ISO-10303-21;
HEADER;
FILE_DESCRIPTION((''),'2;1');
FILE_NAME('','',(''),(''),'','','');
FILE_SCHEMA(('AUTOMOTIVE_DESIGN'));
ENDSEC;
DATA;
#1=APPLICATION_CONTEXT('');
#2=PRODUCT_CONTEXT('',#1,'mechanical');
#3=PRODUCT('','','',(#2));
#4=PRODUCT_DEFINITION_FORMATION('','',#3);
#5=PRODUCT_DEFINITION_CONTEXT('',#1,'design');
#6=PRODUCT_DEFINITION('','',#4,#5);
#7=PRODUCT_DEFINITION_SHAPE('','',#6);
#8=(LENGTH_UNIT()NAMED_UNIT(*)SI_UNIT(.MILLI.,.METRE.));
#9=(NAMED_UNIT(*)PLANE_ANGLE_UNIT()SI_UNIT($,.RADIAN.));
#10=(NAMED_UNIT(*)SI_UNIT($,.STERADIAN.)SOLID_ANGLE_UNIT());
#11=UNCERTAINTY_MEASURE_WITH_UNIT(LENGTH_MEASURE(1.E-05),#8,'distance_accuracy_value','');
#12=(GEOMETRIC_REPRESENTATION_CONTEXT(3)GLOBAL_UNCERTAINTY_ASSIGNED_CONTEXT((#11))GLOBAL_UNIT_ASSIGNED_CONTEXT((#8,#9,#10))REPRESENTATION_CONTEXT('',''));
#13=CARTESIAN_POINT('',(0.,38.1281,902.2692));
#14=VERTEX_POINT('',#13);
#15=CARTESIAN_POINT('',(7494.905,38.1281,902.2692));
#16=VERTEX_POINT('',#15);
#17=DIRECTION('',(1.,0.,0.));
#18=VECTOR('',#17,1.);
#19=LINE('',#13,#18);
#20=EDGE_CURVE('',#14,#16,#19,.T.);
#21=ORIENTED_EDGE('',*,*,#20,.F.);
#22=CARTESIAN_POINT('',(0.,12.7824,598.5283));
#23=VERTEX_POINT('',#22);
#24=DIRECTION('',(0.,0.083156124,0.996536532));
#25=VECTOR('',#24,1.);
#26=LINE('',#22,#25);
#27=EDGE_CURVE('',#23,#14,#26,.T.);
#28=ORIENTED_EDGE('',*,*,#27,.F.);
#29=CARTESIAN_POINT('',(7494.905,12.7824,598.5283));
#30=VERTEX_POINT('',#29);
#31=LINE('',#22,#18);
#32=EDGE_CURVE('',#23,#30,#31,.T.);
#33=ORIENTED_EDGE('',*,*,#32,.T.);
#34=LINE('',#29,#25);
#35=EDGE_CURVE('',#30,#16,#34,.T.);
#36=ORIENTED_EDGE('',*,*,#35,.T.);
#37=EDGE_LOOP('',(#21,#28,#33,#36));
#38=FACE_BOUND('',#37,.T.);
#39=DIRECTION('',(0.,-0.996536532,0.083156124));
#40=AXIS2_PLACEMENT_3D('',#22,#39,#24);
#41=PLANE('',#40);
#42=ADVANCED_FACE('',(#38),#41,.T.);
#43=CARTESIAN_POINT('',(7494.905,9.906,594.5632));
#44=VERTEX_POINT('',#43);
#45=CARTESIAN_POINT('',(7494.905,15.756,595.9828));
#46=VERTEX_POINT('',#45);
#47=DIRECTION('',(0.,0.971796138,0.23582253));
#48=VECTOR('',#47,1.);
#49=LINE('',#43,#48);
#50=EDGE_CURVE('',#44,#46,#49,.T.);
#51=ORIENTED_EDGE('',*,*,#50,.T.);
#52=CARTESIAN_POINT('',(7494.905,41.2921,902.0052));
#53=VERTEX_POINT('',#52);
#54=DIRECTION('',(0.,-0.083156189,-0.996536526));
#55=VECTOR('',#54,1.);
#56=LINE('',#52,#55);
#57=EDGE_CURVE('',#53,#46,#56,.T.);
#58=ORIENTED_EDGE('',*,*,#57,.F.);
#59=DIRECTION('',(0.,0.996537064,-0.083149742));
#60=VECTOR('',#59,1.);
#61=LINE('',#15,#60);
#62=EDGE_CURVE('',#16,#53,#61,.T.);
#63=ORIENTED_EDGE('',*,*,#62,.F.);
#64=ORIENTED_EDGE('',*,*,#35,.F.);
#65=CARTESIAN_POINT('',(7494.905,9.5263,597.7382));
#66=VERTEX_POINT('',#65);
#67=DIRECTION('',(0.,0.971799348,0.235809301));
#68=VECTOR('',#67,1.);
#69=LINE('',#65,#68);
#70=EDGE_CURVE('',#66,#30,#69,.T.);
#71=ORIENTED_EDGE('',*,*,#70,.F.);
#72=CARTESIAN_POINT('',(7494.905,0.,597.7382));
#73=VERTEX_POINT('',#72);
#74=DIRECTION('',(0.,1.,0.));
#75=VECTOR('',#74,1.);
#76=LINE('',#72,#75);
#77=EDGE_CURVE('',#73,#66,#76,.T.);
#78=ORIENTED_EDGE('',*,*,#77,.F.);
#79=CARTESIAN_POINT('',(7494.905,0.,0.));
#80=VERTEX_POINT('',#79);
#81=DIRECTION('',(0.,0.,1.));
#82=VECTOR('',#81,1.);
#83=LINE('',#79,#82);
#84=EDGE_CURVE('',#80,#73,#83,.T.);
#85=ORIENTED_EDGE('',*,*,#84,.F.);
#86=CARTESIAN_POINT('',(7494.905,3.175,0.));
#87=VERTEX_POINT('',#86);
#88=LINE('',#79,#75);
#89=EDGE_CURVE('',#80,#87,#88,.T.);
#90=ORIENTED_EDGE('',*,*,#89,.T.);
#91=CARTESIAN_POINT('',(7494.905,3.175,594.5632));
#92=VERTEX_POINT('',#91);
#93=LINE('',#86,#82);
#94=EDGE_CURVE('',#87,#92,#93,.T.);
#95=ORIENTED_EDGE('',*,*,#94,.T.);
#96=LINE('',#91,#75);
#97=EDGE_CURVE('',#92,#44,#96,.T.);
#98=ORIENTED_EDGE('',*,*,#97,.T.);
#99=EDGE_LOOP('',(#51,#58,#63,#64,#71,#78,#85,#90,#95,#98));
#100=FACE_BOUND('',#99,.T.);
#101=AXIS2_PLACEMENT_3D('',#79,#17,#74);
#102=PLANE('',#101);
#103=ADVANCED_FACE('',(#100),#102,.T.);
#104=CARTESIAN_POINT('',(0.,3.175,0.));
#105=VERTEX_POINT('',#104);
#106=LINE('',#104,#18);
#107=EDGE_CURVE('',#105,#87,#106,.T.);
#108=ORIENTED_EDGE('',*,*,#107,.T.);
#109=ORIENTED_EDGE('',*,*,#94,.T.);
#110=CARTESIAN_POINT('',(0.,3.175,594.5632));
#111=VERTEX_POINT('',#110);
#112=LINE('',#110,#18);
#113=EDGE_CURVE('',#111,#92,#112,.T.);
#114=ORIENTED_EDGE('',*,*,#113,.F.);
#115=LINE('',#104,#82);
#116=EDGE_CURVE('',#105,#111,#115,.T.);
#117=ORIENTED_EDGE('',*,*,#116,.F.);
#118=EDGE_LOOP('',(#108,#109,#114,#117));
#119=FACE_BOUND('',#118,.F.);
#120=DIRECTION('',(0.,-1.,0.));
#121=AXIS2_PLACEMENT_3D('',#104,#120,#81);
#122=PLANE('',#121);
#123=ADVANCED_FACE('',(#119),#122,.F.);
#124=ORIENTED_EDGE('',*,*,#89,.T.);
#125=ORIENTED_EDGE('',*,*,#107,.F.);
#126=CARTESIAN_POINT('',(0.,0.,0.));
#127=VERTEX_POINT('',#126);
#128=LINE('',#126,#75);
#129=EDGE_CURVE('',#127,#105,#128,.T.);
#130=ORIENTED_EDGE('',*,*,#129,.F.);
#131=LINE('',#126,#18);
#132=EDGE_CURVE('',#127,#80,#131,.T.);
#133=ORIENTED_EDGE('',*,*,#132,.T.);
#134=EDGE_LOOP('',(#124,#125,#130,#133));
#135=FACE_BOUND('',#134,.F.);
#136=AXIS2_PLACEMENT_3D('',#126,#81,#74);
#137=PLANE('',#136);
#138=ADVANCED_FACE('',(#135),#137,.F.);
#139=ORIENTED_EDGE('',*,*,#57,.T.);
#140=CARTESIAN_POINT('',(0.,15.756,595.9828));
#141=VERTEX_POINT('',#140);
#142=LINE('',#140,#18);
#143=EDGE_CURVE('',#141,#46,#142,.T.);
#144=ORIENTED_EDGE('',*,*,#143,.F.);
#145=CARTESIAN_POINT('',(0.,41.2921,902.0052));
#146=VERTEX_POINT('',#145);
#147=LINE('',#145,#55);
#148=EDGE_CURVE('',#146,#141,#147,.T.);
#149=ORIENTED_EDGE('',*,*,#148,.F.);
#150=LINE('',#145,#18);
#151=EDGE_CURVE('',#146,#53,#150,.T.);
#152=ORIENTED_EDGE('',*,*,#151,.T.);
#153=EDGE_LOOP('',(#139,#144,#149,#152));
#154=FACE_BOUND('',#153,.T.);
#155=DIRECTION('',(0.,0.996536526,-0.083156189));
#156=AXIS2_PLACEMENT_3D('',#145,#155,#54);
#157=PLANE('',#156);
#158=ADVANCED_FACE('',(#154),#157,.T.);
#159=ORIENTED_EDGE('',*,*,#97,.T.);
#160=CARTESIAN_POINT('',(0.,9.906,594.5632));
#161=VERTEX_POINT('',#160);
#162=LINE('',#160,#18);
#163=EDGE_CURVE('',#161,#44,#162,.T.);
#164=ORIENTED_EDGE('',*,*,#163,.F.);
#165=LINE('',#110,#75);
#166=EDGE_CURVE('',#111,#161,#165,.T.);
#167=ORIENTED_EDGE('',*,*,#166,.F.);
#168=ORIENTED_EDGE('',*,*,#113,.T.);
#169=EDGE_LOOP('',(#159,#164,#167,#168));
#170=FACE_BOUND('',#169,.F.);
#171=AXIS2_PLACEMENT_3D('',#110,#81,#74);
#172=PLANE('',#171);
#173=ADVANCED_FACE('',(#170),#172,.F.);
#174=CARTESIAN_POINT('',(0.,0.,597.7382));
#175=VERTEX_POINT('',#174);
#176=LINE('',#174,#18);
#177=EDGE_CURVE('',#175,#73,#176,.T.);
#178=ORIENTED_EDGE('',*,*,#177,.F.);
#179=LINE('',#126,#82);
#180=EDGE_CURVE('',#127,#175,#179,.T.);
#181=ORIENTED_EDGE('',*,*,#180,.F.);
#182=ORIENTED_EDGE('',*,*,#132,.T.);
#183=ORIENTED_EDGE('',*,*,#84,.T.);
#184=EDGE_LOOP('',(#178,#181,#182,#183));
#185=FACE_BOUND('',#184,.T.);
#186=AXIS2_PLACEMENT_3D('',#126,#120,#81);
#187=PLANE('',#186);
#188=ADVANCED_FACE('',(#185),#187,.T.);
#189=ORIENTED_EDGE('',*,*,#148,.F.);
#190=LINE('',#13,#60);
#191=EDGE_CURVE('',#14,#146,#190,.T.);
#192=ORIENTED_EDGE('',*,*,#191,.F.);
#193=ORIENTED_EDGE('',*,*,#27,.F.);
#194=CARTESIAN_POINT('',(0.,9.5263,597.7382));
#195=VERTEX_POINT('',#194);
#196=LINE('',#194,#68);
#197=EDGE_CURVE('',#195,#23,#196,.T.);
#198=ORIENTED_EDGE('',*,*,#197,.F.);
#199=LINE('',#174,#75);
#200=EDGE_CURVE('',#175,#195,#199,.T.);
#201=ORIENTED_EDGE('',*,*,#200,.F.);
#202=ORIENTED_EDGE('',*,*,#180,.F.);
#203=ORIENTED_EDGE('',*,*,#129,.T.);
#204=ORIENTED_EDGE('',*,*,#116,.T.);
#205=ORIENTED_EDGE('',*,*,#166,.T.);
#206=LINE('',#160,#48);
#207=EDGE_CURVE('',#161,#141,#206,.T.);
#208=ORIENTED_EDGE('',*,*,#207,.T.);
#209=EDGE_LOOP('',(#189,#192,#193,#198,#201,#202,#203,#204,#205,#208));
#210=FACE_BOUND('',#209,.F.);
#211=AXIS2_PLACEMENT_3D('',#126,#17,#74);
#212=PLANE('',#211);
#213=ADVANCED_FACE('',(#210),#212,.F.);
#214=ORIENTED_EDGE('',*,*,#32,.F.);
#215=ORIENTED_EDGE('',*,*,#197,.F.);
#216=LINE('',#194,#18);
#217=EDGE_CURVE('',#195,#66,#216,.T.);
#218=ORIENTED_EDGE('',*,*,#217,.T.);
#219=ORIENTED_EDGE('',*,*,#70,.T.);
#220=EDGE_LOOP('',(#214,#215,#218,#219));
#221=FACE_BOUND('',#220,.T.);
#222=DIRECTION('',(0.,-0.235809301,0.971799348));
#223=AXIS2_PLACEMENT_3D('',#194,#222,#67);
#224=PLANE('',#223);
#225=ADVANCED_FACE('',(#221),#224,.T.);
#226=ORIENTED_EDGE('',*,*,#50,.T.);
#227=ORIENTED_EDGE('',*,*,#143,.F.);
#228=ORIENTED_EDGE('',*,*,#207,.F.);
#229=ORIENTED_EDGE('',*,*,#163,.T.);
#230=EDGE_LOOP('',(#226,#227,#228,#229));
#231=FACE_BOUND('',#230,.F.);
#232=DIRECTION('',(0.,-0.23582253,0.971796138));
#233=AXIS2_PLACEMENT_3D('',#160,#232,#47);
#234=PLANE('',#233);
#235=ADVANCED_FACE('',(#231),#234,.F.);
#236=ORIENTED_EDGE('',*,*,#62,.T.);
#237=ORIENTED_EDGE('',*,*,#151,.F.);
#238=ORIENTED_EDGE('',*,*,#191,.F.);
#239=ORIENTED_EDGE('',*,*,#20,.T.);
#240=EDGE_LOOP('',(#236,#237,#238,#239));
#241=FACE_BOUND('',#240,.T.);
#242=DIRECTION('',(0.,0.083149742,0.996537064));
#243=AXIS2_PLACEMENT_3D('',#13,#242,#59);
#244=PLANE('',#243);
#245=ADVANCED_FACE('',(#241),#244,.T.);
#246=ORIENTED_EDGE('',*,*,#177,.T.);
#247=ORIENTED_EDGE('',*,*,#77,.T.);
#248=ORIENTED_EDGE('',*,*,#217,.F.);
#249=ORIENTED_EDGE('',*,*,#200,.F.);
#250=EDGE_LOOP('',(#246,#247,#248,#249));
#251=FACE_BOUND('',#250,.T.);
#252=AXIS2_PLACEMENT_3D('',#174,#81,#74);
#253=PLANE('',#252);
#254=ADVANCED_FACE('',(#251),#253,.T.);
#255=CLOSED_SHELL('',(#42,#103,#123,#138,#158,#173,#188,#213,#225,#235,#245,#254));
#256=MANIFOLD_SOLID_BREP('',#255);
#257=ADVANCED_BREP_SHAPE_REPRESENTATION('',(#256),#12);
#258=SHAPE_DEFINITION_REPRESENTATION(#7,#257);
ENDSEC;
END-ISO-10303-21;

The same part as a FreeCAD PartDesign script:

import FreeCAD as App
import Part
import Sketcher
Q = App.Units.Quantity

doc = App.newDocument("Part")
body = doc.addObject("PartDesign::Body", "Body")

sketch1 = doc.addObject("Sketcher::SketchObject", "Sketch")
body.addObject(sketch1)
sketch1.AttachmentSupport = (doc.YZ_Plane, [""])
sketch1.MapMode = "FlatFace"
sketch1.addGeometry(Part.LineSegment(App.Vector(0, 597.7, 0), App.Vector(0, 0, 0)), False)
sketch1.addGeometry(Part.LineSegment(App.Vector(0, 0, 0), App.Vector(3.2, 0, 0)), False)
sketch1.addGeometry(Part.LineSegment(App.Vector(3.2, 0, 0), App.Vector(3.2, 594.6, 0)), False)
sketch1.addGeometry(Part.LineSegment(App.Vector(3.2, 594.6, 0), App.Vector(9.9, 594.6, 0)), False)
sketch1.addGeometry(Part.LineSegment(App.Vector(9.9, 594.6, 0), App.Vector(15.8, 596, 0)), False)
sketch1.addGeometry(Part.LineSegment(App.Vector(15.8, 596, 0), App.Vector(41.3, 902, 0)), False)
sketch1.addGeometry(Part.LineSegment(App.Vector(41.3, 902, 0), App.Vector(38.1, 902.3, 0)), False)
sketch1.addGeometry(Part.LineSegment(App.Vector(38.1, 902.3, 0), App.Vector(12.8, 598.5, 0)), False)
sketch1.addGeometry(Part.LineSegment(App.Vector(12.8, 598.5, 0), App.Vector(9.5, 597.7, 0)), False)
sketch1.addGeometry(Part.LineSegment(App.Vector(9.5, 597.7, 0), App.Vector(0, 597.7, 0)), False)
sketch1.addConstraint(Sketcher.Constraint("Coincident", 0, 2, 1, 1))
sketch1.addConstraint(Sketcher.Constraint("Coincident", 1, 2, 2, 1))
sketch1.addConstraint(Sketcher.Constraint("Coincident", 2, 2, 3, 1))
sketch1.addConstraint(Sketcher.Constraint("Coincident", 3, 2, 4, 1))
sketch1.addConstraint(Sketcher.Constraint("Coincident", 4, 2, 5, 1))
sketch1.addConstraint(Sketcher.Constraint("Coincident", 5, 2, 6, 1))
sketch1.addConstraint(Sketcher.Constraint("Coincident", 6, 2, 7, 1))
sketch1.addConstraint(Sketcher.Constraint("Coincident", 7, 2, 8, 1))
sketch1.addConstraint(Sketcher.Constraint("Coincident", 8, 2, 9, 1))
sketch1.addConstraint(Sketcher.Constraint("Coincident", 9, 2, 0, 1))
sketch1.addConstraint(Sketcher.Constraint("Vertical", 0))
sketch1.addConstraint(Sketcher.Constraint("Horizontal", 1))
sketch1.addConstraint(Sketcher.Constraint("Vertical", 2))
sketch1.addConstraint(Sketcher.Constraint("Horizontal", 3))
sketch1.addConstraint(Sketcher.Constraint("Horizontal", 9))
sketch1.addConstraint(Sketcher.Constraint("Coincident", 0, 2, -1, 1))
sketch1.addConstraint(Sketcher.Constraint("Perpendicular", 5, 6))
sketch1.addConstraint(Sketcher.Constraint("Perpendicular", 6, 7))
sketch1.addConstraint(Sketcher.Constraint("Parallel", 4, 8))
sketch1.addConstraint(Sketcher.Constraint("Distance", 5, Q("12.09 in")))
sketch1.addConstraint(Sketcher.Constraint("DistanceX", 1, 1, 1, 2, Q("0.125 in")))
sketch1.addConstraint(Sketcher.Constraint("DistanceX", 3, 1, 3, 2, Q("0.265 in")))
sketch1.addConstraint(Sketcher.Constraint("DistanceY", 2, 1, 2, 2, Q("23.408 in")))
sketch1.addConstraint(Sketcher.Constraint("Distance", 4, Q("0.237 in")))
sketch1.addConstraint(Sketcher.Constraint("Distance", 6, Q("0.125 in")))
sketch1.addConstraint(Sketcher.Constraint("DistanceY", 3, 2, 8, 2, Q("0.125 in")))
sketch1.addConstraint(Sketcher.Constraint("Angle", 4, Q("13.64 deg")))
sketch1.addConstraint(Sketcher.Constraint("Angle", 5, Q("85.23 deg")))
sketch1.addConstraint(Sketcher.Constraint("DistanceX", 9, 2, 9, 1, Q("9.5263 mm")))
pad1 = doc.addObject("PartDesign::Pad", "Pad")
body.addObject(pad1)
pad1.Profile = sketch1
pad1.Length = Q("295.075 in")

doc.recompute()
